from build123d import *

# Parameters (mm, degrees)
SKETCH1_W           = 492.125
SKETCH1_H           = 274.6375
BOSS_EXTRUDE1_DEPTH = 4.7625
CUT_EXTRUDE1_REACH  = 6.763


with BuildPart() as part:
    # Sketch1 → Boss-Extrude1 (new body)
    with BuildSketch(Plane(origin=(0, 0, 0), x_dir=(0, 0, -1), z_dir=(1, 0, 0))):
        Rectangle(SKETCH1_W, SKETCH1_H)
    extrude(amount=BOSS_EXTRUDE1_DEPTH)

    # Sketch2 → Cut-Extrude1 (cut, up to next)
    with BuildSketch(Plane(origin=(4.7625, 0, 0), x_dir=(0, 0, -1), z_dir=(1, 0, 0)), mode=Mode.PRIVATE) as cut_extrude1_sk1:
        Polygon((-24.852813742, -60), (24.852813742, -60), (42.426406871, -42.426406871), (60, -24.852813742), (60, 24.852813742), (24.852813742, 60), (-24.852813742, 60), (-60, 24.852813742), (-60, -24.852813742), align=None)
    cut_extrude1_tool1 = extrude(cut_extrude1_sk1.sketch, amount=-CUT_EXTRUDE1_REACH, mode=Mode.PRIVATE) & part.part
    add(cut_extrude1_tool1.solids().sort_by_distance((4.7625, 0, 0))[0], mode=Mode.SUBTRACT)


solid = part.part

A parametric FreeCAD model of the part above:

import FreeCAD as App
import Part
import Sketcher

V = App.Vector
Q = App.Units.Quantity


def add_polygon(sketch, points):
    """Adds a closed chain of lines whose ends are joined by coincident constraints."""
    first, n = sketch.GeometryCount, len(points)
    for a, b in zip(points, points[1:] + points[:1]):
        sketch.addGeometry(Part.LineSegment(App.Vector(*a, 0), App.Vector(*b, 0)), False)
    for i in range(n):
        sketch.addConstraint(Sketcher.Constraint("Coincident", first + i, 2, first + (i + 1) % n, 1))

doc = App.newDocument("Part")
params = doc.addObject("Spreadsheet::Sheet", "Params")
for row, (alias, value) in enumerate([
    ("sketch1_width", "10.8125 in"),
    ("sketch1_height", "19.375 in"),
    ("pad1_length", "0.1875 in"),
], start=1):
    params.set(f"A{row}", alias)
    params.set(f"B{row}", "=" + value)
    params.setAlias(f"B{row}", alias)

body = doc.addObject("PartDesign::Body", "Body")

# Sketch on YZ plane
sketch1 = body.newObject("Sketcher::SketchObject", "Sketch")
sketch1.AttachmentSupport = (doc.getObject("YZ_Plane"), [""])
sketch1.MapMode = "FlatFace"
add_polygon(sketch1, [(137, 246), (-137, 246), (-137, -246), (137, -246)])  # lines 0-3
sketch1.addConstraint([
    Sketcher.Constraint("Horizontal", 0),
    Sketcher.Constraint("Vertical", 1),
    Sketcher.Constraint("Horizontal", 2),
    Sketcher.Constraint("Vertical", 3),
    Sketcher.Constraint("Symmetric", 0, 2, 2, 2, -1, 1),
    Sketcher.Constraint("DistanceX", 0, 2, 0, 1, Q("10.8125 in")),
    Sketcher.Constraint("DistanceY", 1, 2, 1, 1, Q("19.375 in")),
])
sketch1.setExpression("Constraints[9]", "Params.sketch1_width")
sketch1.setExpression("Constraints[10]", "Params.sketch1_height")
pad1 = body.newObject("PartDesign::Pad", "Pad")
pad1.Profile = sketch1
pad1.setExpression("Length", "Params.pad1_length")

# Sketch on YZ plane
sketch2 = body.newObject("Sketcher::SketchObject", "Sketch001")
sketch2.AttachmentSupport = (doc.getObject("YZ_Plane"), [""])
sketch2.MapMode = "FlatFace"
sketch2.AttachmentOffset = App.Placement(V(0, 0, 0.1875 * 25.4), App.Rotation())
add_polygon(sketch2, [(-60, 25), (-60, -25), (-25, -60), (25, -60), (60, -25), (60, 25), (25, 60), (-25, 60)])  # lines 0-7
sketch2.addConstraint([
    Sketcher.Constraint("Vertical", 0),
    Sketcher.Constraint("Horizontal", 2),
    Sketcher.Constraint("Vertical", 4),
    Sketcher.Constraint("Horizontal", 6),
    Sketcher.Constraint("Symmetric", 0, 2, 4, 2, -1, 1),
    Sketcher.Constraint("Symmetric", 1, 2, 5, 2, -1, 1),
    Sketcher.Constraint("Perpendicular", 1, 3),
    Sketcher.Constraint("Perpendicular", 5, 7),
    Sketcher.Constraint("Horizontal", 0, 2, 3, 2),
    Sketcher.Constraint("Horizontal", 4, 2, 7, 2),
    Sketcher.Constraint("Vertical", 2, 2, 5, 2),
    Sketcher.Constraint("Equal", 6, 0),
    Sketcher.Constraint("DistanceX", 0, 2, -1, 1, Q("60 mm")),
    Sketcher.Constraint("DistanceX", 2, 1, 2, 2, Q("49.705627 mm")),
])
pocket1 = body.newObject("PartDesign::Pocket", "Pocket")
pocket1.Profile = sketch2
pocket1.Type = "UpToFirst"

doc.recompute()
